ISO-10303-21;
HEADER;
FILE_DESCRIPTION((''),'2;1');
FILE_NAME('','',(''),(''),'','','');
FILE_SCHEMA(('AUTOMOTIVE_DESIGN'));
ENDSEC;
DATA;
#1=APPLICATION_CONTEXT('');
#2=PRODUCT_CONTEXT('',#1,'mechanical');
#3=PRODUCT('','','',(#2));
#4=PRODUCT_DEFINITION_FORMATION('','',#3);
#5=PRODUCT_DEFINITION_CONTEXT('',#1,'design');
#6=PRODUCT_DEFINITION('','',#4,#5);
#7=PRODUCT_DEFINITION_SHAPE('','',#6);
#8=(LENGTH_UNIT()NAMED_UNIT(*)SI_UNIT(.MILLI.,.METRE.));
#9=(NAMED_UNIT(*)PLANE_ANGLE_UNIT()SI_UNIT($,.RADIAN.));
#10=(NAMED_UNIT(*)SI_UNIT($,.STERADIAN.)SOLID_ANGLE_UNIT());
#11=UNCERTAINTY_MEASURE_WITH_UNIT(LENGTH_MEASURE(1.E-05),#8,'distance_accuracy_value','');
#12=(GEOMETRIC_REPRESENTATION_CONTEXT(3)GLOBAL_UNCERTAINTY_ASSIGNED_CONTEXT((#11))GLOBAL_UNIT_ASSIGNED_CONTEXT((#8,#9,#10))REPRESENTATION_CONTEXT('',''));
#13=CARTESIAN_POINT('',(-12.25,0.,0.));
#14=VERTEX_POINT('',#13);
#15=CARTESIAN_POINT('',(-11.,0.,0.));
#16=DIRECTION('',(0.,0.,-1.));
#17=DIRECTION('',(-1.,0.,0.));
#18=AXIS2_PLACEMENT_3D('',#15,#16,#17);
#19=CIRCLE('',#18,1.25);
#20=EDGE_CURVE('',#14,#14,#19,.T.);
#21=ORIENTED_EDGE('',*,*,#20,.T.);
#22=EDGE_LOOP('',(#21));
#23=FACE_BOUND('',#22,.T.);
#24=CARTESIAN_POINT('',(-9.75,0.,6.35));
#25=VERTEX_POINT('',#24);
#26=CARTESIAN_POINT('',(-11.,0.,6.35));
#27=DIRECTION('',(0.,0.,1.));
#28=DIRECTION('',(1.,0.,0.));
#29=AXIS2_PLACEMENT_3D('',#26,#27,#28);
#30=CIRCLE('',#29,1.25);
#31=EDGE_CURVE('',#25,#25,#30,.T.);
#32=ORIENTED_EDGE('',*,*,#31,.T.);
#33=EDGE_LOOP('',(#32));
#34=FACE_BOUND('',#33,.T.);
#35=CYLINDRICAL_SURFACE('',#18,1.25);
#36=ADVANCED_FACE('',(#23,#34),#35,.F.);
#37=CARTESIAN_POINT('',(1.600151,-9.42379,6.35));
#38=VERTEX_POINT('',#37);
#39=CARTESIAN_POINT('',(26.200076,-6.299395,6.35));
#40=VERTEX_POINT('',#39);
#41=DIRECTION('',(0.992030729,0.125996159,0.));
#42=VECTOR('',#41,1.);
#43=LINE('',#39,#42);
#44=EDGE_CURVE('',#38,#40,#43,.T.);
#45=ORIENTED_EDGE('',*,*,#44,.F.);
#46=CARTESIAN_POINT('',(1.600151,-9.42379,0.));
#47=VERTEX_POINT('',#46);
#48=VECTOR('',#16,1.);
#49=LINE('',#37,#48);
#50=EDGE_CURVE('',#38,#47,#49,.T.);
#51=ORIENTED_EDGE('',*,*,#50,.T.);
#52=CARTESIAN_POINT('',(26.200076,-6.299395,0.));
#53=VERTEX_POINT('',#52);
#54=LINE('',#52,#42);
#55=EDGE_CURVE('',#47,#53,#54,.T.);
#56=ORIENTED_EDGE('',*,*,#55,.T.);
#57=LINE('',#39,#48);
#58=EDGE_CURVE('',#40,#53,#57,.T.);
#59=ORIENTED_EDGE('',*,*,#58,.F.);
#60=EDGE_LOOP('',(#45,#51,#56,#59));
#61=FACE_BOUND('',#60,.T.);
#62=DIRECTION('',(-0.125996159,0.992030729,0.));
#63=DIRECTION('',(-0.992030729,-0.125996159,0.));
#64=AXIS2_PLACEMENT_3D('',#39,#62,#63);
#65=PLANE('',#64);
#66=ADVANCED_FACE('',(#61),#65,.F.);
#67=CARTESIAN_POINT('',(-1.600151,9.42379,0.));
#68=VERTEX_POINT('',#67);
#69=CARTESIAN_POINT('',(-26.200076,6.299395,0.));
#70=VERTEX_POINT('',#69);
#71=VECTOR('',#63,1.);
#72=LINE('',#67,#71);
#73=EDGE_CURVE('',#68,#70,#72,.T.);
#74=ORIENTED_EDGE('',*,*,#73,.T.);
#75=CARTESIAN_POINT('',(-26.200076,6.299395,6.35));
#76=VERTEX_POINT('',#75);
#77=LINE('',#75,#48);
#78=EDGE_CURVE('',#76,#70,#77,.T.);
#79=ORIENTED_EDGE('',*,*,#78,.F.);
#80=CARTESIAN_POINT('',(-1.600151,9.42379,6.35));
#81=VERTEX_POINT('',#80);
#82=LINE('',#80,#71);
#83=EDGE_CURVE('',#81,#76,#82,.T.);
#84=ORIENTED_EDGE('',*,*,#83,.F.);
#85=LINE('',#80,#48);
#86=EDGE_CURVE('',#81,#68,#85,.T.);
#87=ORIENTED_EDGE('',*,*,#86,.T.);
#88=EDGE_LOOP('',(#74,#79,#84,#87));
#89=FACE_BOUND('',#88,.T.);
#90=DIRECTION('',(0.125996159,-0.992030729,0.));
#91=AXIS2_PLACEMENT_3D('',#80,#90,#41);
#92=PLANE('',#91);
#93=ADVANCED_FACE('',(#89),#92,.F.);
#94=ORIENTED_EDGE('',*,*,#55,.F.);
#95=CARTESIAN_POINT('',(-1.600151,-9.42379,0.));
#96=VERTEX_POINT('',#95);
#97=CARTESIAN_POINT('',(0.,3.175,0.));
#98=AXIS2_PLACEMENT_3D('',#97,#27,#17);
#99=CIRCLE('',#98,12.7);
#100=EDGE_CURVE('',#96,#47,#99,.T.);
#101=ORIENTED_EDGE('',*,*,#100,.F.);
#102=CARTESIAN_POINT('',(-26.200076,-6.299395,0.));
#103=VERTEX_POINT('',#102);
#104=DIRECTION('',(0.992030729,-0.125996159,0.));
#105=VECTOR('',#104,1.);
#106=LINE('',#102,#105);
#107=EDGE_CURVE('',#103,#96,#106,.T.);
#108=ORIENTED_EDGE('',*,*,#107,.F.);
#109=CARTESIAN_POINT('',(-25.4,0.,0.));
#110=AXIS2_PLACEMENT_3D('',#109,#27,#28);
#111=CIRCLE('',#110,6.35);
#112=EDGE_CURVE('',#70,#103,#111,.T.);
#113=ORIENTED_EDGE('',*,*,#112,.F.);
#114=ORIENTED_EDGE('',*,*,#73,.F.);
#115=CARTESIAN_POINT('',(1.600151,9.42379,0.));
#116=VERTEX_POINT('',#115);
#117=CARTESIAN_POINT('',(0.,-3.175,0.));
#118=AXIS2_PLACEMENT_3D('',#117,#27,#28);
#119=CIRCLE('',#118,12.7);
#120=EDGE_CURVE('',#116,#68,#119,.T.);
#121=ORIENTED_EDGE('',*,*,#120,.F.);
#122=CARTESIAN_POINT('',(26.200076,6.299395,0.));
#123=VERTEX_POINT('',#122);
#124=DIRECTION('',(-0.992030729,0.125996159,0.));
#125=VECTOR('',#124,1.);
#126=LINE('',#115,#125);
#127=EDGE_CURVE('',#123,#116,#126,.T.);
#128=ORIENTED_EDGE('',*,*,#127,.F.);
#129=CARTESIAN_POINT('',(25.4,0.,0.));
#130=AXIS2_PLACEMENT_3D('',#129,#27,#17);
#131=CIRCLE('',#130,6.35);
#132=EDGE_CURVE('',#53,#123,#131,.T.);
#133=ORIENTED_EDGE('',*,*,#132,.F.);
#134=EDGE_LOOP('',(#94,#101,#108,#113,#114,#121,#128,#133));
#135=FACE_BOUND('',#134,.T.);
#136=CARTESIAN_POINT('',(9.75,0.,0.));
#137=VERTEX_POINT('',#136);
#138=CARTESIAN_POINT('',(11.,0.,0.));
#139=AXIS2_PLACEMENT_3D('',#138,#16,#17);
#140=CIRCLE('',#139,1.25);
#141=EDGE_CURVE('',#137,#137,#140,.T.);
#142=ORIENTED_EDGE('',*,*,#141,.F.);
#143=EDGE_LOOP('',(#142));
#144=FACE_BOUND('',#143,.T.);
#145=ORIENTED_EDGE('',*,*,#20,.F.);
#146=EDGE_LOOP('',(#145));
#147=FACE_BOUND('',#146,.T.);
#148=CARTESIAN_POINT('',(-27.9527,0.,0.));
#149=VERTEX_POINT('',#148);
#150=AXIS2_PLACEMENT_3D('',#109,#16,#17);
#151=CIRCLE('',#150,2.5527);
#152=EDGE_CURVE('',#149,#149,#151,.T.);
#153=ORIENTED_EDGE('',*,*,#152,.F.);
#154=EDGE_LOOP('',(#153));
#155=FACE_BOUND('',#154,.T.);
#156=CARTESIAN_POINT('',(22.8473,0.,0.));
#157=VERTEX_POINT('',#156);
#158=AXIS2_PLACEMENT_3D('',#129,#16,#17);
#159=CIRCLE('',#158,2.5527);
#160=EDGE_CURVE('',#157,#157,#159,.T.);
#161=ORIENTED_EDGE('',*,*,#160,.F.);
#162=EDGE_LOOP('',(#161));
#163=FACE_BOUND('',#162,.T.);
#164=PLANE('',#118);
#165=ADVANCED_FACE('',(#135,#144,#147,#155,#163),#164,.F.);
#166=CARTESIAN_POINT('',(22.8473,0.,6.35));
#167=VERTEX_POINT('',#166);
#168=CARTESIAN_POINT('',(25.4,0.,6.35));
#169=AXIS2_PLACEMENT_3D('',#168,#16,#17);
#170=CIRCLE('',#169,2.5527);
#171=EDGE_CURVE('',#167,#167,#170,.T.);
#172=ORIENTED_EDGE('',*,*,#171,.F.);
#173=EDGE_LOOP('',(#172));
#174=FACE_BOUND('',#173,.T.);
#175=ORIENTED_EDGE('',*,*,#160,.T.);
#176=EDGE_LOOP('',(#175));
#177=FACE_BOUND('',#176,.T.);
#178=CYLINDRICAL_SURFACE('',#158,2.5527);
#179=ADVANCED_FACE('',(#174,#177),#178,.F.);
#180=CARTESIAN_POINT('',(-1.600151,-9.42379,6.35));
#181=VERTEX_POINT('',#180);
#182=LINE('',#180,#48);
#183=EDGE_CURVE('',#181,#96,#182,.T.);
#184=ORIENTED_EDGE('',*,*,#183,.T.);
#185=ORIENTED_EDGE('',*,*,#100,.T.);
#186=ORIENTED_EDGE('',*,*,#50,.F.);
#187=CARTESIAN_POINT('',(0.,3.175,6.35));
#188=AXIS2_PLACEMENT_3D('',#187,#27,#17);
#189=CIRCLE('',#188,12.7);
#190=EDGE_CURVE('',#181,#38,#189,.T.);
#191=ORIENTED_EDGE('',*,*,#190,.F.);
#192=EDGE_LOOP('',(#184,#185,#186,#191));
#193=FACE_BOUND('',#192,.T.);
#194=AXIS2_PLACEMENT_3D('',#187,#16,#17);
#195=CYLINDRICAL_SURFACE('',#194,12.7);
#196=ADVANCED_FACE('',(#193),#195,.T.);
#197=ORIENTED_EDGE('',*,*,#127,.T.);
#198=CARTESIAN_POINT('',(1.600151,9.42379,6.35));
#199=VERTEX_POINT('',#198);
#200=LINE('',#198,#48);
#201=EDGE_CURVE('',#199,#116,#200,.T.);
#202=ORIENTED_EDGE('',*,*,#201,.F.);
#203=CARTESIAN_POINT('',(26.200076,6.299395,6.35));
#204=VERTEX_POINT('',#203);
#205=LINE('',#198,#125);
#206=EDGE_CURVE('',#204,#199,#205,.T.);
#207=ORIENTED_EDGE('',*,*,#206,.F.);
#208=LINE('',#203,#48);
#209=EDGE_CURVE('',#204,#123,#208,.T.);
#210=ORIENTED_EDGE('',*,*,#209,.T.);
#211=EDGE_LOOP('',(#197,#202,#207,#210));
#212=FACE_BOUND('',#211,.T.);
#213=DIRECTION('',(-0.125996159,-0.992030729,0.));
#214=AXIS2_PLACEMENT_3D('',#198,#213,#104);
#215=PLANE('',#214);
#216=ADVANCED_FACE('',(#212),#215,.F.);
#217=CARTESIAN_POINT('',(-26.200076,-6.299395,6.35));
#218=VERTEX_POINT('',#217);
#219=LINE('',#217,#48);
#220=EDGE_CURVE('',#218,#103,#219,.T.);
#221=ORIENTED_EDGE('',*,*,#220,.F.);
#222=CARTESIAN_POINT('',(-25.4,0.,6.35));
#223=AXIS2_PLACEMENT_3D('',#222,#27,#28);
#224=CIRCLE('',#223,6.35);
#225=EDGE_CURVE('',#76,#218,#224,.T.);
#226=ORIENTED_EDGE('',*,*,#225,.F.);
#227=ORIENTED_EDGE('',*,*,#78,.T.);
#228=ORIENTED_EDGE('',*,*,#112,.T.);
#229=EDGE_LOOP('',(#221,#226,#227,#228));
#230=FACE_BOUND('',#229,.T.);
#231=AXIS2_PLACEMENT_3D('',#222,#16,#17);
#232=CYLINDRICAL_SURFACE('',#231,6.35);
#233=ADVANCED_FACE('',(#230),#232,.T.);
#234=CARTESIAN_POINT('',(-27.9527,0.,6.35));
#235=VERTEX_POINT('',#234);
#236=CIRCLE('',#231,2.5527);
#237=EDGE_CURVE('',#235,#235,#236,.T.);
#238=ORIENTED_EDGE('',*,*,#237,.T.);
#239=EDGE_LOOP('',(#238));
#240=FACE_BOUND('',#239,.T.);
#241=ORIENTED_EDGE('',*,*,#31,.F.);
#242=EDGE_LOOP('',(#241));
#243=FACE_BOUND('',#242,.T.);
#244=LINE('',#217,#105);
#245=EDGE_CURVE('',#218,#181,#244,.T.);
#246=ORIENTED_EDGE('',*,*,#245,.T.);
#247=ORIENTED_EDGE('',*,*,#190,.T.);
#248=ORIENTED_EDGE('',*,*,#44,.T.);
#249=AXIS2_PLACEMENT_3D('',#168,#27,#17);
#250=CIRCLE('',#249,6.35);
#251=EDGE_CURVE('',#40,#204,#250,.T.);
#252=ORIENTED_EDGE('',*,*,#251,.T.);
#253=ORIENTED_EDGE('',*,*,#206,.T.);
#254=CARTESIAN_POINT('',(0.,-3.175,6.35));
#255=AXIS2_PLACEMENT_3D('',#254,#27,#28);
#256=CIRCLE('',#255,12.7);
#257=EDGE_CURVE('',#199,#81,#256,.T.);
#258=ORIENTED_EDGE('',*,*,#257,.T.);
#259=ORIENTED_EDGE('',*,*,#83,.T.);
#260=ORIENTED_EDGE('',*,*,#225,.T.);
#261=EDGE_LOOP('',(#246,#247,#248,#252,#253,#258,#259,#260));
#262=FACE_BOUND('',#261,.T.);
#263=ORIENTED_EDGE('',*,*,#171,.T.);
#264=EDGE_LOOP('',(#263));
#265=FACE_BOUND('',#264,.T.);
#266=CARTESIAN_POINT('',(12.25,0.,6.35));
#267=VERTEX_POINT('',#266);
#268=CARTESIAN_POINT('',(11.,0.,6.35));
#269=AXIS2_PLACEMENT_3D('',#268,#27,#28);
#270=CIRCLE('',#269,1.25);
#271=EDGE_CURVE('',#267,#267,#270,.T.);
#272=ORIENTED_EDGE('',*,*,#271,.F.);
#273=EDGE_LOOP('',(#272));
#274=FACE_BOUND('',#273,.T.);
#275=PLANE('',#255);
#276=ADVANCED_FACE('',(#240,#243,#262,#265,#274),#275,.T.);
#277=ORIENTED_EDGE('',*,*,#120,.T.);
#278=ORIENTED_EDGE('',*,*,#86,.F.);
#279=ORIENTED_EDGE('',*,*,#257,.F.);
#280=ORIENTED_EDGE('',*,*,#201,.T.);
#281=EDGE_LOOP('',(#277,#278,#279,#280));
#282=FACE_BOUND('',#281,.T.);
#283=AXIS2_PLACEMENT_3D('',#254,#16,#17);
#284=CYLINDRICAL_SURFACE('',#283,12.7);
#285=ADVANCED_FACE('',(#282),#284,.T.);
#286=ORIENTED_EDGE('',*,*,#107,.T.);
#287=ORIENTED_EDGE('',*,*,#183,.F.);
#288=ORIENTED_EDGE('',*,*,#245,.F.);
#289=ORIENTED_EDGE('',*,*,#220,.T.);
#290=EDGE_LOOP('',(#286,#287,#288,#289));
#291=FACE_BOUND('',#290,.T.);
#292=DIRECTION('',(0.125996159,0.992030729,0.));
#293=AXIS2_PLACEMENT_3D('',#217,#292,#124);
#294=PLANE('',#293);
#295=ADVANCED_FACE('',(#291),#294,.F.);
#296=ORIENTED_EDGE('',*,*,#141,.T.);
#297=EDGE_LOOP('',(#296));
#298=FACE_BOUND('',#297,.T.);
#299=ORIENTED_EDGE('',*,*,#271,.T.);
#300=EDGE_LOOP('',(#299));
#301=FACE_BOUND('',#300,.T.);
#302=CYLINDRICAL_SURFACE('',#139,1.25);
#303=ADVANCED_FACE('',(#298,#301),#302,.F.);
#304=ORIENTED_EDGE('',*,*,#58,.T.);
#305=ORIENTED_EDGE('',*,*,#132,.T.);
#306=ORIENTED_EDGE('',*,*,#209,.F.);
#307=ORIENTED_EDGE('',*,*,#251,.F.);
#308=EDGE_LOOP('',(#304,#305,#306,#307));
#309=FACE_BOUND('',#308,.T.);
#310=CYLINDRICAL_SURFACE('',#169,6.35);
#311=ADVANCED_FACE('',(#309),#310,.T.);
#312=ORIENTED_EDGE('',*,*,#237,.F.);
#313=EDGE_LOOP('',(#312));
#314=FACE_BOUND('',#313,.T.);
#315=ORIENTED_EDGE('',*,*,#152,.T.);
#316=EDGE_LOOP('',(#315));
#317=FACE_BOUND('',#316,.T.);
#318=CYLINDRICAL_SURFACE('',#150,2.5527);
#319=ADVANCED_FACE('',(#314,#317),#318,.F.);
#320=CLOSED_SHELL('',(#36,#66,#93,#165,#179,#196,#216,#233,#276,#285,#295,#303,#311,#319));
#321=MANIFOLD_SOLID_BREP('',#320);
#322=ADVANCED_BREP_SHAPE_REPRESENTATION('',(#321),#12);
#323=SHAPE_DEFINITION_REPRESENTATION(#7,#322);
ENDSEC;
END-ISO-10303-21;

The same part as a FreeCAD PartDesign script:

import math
import FreeCAD as App
import Part
import Sketcher
Q = App.Units.Quantity

doc = App.newDocument("Part")
body = doc.addObject("PartDesign::Body", "Body")

# Sketch on XY plane
sketch1 = doc.addObject("Sketcher::SketchObject", "Sketch")
body.addObject(sketch1)
sketch1.AttachmentSupport = (doc.XY_Plane, [""])
sketch1.MapMode = "FlatFace"
sketch1.addGeometry(Part.LineSegment(App.Vector(26.2, 6.3, 0), App.Vector(1.6, 9.4, 0)), False)
sketch1.addGeometry(Part.ArcOfCircle(Part.Circle(App.Vector(0, -3.2, 0), App.Vector(0, 0, 1), 12.7), math.radians(82.76), math.radians(97.24)), False)
sketch1.addGeometry(Part.LineSegment(App.Vector(-1.6, 9.4, 0), App.Vector(-26.2, 6.3, 0)), False)
sketch1.addGeometry(Part.ArcOfCircle(Part.Circle(App.Vector(-25.4, 0, 0), App.Vector(0, 0, 1), 6.3), math.radians(97), math.radians(263)), False)
sketch1.addGeometry(Part.LineSegment(App.Vector(-26.2, -6.3, 0), App.Vector(-1.6, -9.4, 0)), False)
sketch1.addGeometry(Part.ArcOfCircle(Part.Circle(App.Vector(0, 3.2, 0), App.Vector(0, 0, 1), 12.7), math.radians(-97.24), math.radians(-82.76)), False)
sketch1.addGeometry(Part.LineSegment(App.Vector(1.6, -9.4, 0), App.Vector(26.2, -6.3, 0)), False)
sketch1.addGeometry(Part.ArcOfCircle(Part.Circle(App.Vector(25.4, 0, 0), App.Vector(0, 0, 1), 6.3), math.radians(-83), math.radians(83)), False)
sketch1.addConstraint(Sketcher.Constraint("Tangent", 0, 2, 1, 1))
sketch1.addConstraint(Sketcher.Constraint("Tangent", 1, 2, 2, 1))
sketch1.addConstraint(Sketcher.Constraint("Tangent", 2, 2, 3, 1))
sketch1.addConstraint(Sketcher.Constraint("Tangent", 3, 2, 4, 1))
sketch1.addConstraint(Sketcher.Constraint("Tangent", 4, 2, 5, 1))
sketch1.addConstraint(Sketcher.Constraint("Tangent", 5, 2, 6, 1))
sketch1.addConstraint(Sketcher.Constraint("Tangent", 6, 2, 7, 1))
sketch1.addConstraint(Sketcher.Constraint("Tangent", 7, 2, 0, 1))
sketch1.addConstraint(Sketcher.Constraint("Equal", 1, 5))
sketch1.addConstraint(Sketcher.Constraint("Equal", 3, 7))
sketch1.addConstraint(Sketcher.Constraint("Symmetric", 1, 3, 5, 3, -1, 1))
sketch1.addConstraint(Sketcher.Constraint("Symmetric", 3, 3, 7, 3, -1, 1))
sketch1.addConstraint(Sketcher.Constraint("Symmetric", 0, 2, 1, 2, -2))
sketch1.addConstraint(Sketcher.Constraint("Radius", 1, Q("0.5 in")))
sketch1.addConstraint(Sketcher.Constraint("Radius", 3, Q("0.25 in")))
sketch1.addConstraint(Sketcher.Constraint("DistanceX", 3, 3, -1, 1, Q("1 in")))
sketch1.addConstraint(Sketcher.Constraint("DistanceY", 1, 3, 5, 3, Q("0.25 in")))
pad1 = doc.addObject("PartDesign::Pad", "Pad")
body.addObject(pad1)
pad1.Profile = sketch1
pad1.Length = Q("0.25 in")

# Sketch on XY plane
sketch2 = doc.addObject("Sketcher::SketchObject", "Sketch001")
body.addObject(sketch2)
sketch2.AttachmentSupport = (doc.XY_Plane, [""])
sketch2.MapMode = "FlatFace"
sketch2.addGeometry(Part.Circle(App.Vector(11, 0, 0), App.Vector(0, 0, 1), 1.2), False)
sketch2.addGeometry(Part.Circle(App.Vector(-11, 0, 0), App.Vector(0, 0, 1), 1.2), False)
sketch2.addConstraint(Sketcher.Constraint("Equal", 0, 1))
sketch2.addConstraint(Sketcher.Constraint("Symmetric", 0, 3, 1, 3, -1, 1))
sketch2.addConstraint(Sketcher.Constraint("PointOnObject", 0, 3, -1))
sketch2.addConstraint(Sketcher.Constraint("Diameter", 0, Q("2.5 mm")))
sketch2.addConstraint(Sketcher.Constraint("DistanceX", -1, 1, 0, 3, Q("11 mm")))
doc.recompute()
hole = doc.addObject("PartDesign::Hole", "Hole")
body.addObject(hole)
hole.Profile = sketch2
hole.ThreadType = "None"
hole.Diameter = 2.5
hole.DepthType = "Dimension"
hole.Depth = Q("0.25 in")
hole.DrillPoint = "Flat"
hole.Reversed = True

# Sketch on XY plane
sketch3 = doc.addObject("Sketcher::SketchObject", "Sketch002")
body.addObject(sketch3)
sketch3.AttachmentSupport = (doc.XY_Plane, [""])
sketch3.MapMode = "FlatFace"
sketch3.addGeometry(Part.Circle(App.Vector(-25.4, 0, 0), App.Vector(0, 0, 1), 2.6), False)
sketch3.addGeometry(Part.Circle(App.Vector(25.4, 0, 0), App.Vector(0, 0, 1), 2.6), False)
sketch3.addConstraint(Sketcher.Constraint("Equal", 0, 1))
sketch3.addConstraint(Sketcher.Constraint("Symmetric", 0, 3, 1, 3, -1, 1))
sketch3.addConstraint(Sketcher.Constraint("PointOnObject", 0, 3, -1))
sketch3.addConstraint(Sketcher.Constraint("Diameter", 0, Q("0.201 in")))
sketch3.addConstraint(Sketcher.Constraint("DistanceX", 0, 3, -1, 1, Q("1 in")))
doc.recompute()
hole2 = doc.addObject("PartDesign::Hole", "Hole001")
body.addObject(hole2)
hole2.Profile = sketch3
hole2.ThreadType = "None"
hole2.Diameter = Q("0.201 in")
hole2.DepthType = "ThroughAll"
hole2.Reversed = True

doc.recompute()
